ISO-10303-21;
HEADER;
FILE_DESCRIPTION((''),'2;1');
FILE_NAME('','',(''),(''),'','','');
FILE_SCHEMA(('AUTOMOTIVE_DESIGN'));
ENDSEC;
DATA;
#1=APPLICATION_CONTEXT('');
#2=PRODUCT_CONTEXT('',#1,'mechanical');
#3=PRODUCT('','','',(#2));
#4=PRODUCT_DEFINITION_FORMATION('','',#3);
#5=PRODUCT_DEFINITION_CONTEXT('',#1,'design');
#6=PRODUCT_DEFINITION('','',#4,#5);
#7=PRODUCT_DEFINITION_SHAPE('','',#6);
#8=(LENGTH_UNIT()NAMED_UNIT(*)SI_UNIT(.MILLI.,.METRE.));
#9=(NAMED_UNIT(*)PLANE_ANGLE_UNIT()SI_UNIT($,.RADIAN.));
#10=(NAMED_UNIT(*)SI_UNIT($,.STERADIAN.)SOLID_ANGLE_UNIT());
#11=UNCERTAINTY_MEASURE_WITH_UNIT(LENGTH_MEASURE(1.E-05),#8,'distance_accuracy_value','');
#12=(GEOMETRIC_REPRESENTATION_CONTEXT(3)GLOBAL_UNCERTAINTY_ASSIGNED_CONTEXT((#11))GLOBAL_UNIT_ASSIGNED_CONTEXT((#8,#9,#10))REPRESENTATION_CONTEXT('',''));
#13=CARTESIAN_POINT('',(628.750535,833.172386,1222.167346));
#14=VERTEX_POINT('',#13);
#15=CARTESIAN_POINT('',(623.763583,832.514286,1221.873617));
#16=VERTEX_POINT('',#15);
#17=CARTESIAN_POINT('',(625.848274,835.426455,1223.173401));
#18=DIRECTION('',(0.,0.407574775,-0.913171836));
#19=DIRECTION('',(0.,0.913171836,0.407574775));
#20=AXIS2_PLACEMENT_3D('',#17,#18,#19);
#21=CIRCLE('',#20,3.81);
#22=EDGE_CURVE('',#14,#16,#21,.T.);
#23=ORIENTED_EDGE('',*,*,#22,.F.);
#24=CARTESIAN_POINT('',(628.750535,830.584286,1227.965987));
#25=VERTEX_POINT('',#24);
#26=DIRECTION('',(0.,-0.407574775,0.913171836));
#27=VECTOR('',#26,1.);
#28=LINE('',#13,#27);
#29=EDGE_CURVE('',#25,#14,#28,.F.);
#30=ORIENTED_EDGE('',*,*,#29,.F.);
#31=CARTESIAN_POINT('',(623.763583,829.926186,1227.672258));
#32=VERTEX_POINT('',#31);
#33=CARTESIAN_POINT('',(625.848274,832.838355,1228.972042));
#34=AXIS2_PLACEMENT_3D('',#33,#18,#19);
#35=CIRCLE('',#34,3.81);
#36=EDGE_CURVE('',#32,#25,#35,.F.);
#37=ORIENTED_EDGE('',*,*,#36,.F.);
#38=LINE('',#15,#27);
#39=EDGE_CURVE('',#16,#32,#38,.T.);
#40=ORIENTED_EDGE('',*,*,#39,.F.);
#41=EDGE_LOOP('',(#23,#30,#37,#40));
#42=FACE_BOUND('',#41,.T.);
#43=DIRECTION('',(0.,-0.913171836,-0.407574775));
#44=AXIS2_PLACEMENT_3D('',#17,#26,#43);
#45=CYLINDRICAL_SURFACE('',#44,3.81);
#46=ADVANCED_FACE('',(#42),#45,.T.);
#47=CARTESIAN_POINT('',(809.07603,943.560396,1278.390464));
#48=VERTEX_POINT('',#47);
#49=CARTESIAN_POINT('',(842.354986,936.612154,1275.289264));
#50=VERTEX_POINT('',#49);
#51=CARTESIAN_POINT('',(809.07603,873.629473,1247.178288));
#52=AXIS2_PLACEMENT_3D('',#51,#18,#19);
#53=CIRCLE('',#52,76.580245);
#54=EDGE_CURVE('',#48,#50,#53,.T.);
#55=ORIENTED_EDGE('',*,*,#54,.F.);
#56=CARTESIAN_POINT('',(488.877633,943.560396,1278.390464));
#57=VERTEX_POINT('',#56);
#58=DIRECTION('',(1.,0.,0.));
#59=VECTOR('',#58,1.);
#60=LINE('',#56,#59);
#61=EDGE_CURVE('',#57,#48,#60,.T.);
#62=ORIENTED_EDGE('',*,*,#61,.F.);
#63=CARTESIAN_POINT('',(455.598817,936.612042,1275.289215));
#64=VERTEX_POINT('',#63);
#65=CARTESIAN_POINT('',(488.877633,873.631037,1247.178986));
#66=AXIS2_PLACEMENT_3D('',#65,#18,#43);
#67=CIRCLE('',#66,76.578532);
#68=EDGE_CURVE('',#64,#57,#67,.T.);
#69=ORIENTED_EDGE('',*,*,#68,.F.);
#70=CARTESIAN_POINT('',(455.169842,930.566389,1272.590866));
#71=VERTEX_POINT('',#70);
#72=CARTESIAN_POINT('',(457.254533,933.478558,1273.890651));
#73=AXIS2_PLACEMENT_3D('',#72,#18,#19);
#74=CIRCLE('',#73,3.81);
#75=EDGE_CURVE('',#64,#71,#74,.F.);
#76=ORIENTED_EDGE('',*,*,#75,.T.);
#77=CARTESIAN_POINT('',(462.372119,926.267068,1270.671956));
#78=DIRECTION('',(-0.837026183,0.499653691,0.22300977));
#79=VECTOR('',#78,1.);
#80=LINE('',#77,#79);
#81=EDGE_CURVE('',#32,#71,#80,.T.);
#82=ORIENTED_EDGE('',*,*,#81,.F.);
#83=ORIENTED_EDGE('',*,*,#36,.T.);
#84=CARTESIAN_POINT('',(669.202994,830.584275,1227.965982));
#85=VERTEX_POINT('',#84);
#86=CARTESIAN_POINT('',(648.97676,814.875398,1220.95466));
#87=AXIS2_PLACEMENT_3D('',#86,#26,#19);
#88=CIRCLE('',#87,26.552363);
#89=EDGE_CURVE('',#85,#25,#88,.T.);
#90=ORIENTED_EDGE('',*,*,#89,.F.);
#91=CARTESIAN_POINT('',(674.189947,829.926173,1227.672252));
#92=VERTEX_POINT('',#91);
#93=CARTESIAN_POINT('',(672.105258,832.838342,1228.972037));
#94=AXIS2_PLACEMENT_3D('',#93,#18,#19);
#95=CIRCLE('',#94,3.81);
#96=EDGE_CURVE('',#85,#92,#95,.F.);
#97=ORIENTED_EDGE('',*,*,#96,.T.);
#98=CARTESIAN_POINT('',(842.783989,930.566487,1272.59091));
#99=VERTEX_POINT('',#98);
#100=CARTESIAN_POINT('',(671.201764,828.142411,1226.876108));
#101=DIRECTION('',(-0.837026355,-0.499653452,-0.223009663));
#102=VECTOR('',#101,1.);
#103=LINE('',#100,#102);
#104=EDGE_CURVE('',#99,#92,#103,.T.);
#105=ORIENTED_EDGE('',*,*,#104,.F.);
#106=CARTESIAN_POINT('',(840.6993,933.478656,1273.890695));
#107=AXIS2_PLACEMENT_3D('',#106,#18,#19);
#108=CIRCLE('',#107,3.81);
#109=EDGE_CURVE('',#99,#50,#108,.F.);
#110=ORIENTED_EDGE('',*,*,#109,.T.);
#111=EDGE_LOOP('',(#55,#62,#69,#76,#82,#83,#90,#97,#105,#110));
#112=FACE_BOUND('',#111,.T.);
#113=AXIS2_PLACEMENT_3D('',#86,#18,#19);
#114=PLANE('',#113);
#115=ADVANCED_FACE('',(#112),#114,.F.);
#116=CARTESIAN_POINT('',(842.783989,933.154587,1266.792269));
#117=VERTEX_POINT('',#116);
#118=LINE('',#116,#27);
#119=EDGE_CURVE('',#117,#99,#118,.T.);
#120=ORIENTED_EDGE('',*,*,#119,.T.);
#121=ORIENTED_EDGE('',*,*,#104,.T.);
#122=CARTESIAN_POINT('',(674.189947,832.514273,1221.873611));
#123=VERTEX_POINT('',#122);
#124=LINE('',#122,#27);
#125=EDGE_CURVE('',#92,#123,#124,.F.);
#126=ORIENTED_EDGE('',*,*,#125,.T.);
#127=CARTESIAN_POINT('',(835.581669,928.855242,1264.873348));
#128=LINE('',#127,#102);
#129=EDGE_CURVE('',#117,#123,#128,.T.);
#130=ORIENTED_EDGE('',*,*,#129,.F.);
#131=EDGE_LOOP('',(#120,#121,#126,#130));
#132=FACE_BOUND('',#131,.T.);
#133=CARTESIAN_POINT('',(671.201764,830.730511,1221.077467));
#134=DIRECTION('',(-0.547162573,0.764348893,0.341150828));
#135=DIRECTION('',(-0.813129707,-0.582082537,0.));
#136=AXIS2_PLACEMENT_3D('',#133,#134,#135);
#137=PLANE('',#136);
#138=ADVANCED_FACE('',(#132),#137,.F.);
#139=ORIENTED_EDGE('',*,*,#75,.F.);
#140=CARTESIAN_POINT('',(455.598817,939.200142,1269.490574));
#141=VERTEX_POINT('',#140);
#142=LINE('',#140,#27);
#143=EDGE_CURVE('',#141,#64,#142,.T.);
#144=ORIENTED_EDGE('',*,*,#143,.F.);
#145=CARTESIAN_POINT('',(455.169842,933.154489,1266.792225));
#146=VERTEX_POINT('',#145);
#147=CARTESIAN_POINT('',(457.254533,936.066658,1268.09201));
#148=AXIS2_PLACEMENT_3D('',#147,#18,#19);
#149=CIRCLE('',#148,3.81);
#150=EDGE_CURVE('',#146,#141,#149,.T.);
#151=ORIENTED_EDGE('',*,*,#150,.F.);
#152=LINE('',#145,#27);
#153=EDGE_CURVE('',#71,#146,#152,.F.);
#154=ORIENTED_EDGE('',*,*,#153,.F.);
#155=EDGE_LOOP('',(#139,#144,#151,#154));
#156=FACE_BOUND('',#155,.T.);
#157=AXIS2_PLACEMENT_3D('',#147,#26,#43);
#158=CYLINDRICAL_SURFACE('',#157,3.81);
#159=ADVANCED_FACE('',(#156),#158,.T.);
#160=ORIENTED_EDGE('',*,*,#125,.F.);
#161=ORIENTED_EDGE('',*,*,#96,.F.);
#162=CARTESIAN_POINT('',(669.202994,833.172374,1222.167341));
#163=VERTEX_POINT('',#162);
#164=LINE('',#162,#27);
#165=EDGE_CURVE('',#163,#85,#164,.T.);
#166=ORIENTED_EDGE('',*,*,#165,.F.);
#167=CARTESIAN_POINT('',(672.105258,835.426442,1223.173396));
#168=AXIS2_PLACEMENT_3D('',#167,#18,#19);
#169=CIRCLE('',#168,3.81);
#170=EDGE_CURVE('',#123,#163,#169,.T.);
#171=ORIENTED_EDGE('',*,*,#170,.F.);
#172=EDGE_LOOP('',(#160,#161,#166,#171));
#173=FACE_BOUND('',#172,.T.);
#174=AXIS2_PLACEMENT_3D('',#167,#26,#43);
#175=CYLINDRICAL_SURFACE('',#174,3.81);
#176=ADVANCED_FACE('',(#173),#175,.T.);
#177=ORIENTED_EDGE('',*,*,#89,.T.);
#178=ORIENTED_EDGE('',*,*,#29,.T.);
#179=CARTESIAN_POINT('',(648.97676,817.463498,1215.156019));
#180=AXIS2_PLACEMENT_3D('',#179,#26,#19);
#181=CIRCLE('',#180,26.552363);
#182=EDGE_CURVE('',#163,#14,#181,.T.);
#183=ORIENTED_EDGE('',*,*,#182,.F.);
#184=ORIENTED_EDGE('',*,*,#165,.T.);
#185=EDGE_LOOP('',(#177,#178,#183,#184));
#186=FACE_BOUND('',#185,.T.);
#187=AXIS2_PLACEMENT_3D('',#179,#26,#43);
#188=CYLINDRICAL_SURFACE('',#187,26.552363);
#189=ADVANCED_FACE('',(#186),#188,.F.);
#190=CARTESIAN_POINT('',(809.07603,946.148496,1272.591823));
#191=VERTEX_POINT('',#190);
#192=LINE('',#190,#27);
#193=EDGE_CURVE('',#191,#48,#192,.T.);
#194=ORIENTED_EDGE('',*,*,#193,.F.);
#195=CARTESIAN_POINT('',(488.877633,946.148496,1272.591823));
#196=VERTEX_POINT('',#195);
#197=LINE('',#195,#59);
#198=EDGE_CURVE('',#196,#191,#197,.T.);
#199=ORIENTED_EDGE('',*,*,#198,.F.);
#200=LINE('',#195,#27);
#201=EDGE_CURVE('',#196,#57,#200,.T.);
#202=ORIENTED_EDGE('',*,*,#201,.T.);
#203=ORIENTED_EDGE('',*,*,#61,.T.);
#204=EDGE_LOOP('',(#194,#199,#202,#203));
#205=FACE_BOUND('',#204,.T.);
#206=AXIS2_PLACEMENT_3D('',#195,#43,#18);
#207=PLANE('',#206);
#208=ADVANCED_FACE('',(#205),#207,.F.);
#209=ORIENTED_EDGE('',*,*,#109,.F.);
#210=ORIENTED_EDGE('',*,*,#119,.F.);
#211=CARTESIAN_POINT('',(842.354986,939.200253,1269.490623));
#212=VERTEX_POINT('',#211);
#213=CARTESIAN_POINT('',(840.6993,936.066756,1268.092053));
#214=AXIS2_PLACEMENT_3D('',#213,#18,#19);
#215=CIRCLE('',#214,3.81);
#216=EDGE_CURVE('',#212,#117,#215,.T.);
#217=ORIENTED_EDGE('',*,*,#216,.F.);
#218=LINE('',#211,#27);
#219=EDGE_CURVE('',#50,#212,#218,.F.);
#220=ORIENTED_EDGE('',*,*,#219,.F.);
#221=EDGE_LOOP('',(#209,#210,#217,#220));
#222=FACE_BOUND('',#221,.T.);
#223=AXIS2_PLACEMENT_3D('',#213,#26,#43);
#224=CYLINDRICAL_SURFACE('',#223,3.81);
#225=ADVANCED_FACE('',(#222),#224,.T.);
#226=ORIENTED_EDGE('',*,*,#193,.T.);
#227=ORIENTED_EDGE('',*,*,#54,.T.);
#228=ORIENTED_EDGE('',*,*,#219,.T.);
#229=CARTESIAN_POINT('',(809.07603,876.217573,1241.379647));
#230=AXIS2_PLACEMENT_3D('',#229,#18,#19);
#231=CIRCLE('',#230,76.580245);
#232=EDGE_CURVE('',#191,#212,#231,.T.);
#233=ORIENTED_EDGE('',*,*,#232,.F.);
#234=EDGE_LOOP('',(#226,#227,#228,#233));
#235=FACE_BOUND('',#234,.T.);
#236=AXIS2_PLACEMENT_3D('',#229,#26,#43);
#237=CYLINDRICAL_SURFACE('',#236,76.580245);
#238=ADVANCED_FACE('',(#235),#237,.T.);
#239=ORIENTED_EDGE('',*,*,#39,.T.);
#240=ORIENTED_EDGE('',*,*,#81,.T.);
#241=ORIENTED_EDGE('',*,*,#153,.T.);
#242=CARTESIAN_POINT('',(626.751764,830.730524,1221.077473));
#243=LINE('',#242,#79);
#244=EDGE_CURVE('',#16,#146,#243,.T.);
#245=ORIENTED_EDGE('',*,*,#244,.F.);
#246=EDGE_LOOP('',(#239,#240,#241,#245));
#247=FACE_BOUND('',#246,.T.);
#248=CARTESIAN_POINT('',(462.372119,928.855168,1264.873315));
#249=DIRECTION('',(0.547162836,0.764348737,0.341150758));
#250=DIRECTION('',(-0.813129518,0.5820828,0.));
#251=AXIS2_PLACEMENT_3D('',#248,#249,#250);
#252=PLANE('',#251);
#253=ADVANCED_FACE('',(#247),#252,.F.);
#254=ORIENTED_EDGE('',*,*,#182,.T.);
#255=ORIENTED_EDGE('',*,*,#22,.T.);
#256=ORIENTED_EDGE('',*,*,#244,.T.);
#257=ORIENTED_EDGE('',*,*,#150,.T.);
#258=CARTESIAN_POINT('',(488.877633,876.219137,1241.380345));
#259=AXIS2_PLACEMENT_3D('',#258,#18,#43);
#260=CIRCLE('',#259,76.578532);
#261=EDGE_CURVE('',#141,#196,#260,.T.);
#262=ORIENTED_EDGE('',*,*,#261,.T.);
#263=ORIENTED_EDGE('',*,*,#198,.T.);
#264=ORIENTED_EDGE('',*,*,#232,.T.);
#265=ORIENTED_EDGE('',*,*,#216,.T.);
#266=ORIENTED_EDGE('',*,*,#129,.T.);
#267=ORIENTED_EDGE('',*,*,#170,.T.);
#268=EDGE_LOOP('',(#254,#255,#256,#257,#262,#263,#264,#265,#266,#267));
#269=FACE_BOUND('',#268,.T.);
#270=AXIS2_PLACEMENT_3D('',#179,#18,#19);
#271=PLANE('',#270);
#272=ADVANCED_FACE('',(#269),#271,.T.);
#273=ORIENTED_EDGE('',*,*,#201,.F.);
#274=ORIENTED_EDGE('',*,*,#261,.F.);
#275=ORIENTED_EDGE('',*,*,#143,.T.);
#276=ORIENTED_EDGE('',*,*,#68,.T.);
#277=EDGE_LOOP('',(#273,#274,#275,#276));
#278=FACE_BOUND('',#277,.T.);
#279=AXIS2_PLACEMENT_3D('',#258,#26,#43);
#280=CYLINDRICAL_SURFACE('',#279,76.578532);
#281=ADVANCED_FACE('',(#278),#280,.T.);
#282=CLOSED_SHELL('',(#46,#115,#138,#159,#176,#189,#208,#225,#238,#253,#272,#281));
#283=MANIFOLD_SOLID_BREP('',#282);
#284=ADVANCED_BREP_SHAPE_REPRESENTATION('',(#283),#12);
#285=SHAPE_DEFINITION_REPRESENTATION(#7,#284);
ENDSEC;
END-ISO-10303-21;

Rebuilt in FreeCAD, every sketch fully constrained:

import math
import FreeCAD as App
import Part
import Sketcher
Q = App.Units.Quantity


def edges_at(feature, points):
    """Names of the edges that pass closest to the given points."""
    edges = feature.Shape.Edges
    near = lambda p: min(range(len(edges)), key=lambda i: edges[i].distToShape(Part.Vertex(*p))[0])
    return sorted({f"Edge{near(p) + 1}" for p in points})

doc = App.newDocument("Part")
body = doc.addObject("PartDesign::Body", "Body")

# Sketch on an angled plane
sketch1 = doc.addObject("Sketcher::SketchObject", "Sketch")
body.addObject(sketch1)
sketch1.Placement = App.Placement(App.Vector(809.07603, 943.560396, 1278.390464), App.Rotation(App.Vector(-1, 0, 0), App.Vector(0, 0.913171836, 0.407574775), App.Vector(0, 0.407574775, -0.913171836), "ZXY"))
sketch1.addGeometry(Part.LineSegment(App.Vector(-26.505639, -18.937568, 0), App.Vector(137.874266, -126.392406, 0)), False)
sketch1.addGeometry(Part.ArcOfCircle(Part.Circle(App.Vector(160.09927, -140.920901, 0), App.Vector(0, 0, 1), 26.552363), math.radians(33.1727), math.radians(146.827338)), False)
sketch1.addGeometry(Part.LineSegment(App.Vector(182.324266, -126.392391, 0), App.Vector(359.274618, -10.720196, 0)), False)
sketch1.addGeometry(Part.ArcOfCircle(Part.Circle(App.Vector(320.198397, -76.578532, 0), App.Vector(0, 0, 1), 76.578532), math.radians(59.317754), math.radians(90)), False)
sketch1.addGeometry(Part.LineSegment(App.Vector(320.198397, 0, 0), App.Vector(0, 0, 0)), False)
sketch1.addGeometry(Part.ArcOfCircle(Part.Circle(App.Vector(0, -76.580245, 0), App.Vector(0, 0, 1), 76.580245), math.radians(90), math.radians(120.681684)), False)
sketch1.addGeometry(Part.LineSegment(App.Vector(-39.07645, -10.720052, 0), App.Vector(-26.505639, -18.937568, 0)), False)
sketch1.addConstraint(Sketcher.Constraint("Coincident", 0, 2, 1, 2))
sketch1.addConstraint(Sketcher.Constraint("Coincident", 1, 1, 2, 1))
sketch1.addConstraint(Sketcher.Constraint("Coincident", 2, 2, 3, 1))
sketch1.addConstraint(Sketcher.Constraint("Tangent", 3, 2, 4, 1))
sketch1.addConstraint(Sketcher.Constraint("Tangent", 4, 2, 5, 1))
sketch1.addConstraint(Sketcher.Constraint("Coincident", 5, 2, 6, 1))
sketch1.addConstraint(Sketcher.Constraint("Coincident", 6, 2, 0, 1))
sketch1.addConstraint(Sketcher.Constraint("Horizontal", 4))
sketch1.addConstraint(Sketcher.Constraint("Coincident", 4, 2, -1, 1))
sketch1.addConstraint(Sketcher.Constraint("Parallel", 0, 6))
sketch1.addConstraint(Sketcher.Constraint("DistanceX", 0, 2, 1, 1, Q("1.75 in")))
sketch1.addConstraint(Sketcher.Constraint("DistanceX", 0, 2, 1, 3, Q("0.8750002 in")))
sketch1.addConstraint(Sketcher.Constraint("Radius", 1, 26.552363))
sketch1.addConstraint(Sketcher.Constraint("Radius", 3, 76.578532))
sketch1.addConstraint(Sketcher.Constraint("Radius", 5, 76.580245))
sketch1.addConstraint(Sketcher.Constraint("DistanceY", 1, 3, -1, 1, 140.920901))
sketch1.addConstraint(Sketcher.Constraint("DistanceX", 4, 2, 4, 1, 320.198397))
sketch1.addConstraint(Sketcher.Constraint("DistanceX", -1, 1, 1, 3, 160.09927))
sketch1.addConstraint(Sketcher.Constraint("DistanceX", -1, 1, 2, 2, 359.274618))
sketch1.addConstraint(Sketcher.Constraint("DistanceX", 5, 2, -1, 1, 39.07645))
sketch1.addConstraint(Sketcher.Constraint("DistanceX", 6, 2, -1, 1, 26.505639))
pad1 = doc.addObject("PartDesign::Pad", "Pad")
body.addObject(pad1)
pad1.Profile = sketch1
pad1.Length = Q("0.25 in")
doc.recompute()

fillet = doc.addObject("PartDesign::Fillet", "Fillet")
body.addObject(fillet)
fillet.Base = (pad1, edges_at(pad1, [
    (671.202, 829.436, 1223.977),
    (848.152, 935.065, 1271.122),
    (449.801, 935.065, 1271.122),
    (626.752, 829.436, 1223.977),
]))
fillet.Radius = Q("0.15 in")

doc.recompute()
